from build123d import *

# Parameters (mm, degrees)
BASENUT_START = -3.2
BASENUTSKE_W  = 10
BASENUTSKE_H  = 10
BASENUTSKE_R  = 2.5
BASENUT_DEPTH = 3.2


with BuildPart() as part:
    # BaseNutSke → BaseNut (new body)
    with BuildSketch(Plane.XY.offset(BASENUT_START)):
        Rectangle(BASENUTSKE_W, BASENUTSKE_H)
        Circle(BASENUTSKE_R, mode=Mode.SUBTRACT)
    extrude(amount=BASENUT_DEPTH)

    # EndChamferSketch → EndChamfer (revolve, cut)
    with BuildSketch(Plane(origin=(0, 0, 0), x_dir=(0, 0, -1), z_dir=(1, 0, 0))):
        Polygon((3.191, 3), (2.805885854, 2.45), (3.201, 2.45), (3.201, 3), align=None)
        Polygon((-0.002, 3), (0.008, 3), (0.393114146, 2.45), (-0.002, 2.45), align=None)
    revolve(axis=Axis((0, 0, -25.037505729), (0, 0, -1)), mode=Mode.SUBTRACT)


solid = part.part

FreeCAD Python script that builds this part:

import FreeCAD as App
import Part
import Sketcher
Q = App.Units.Quantity

doc = App.newDocument("Part")
body = doc.addObject("PartDesign::Body", "Body")

sketch1 = body.newObject("Sketcher::SketchObject", "Sketch")
sketch1.AttachmentSupport = (doc.getObject("XY_Plane"), [""])
sketch1.MapMode = "FlatFace"
sketch1.AttachmentOffset = App.Placement(App.Vector(0, 0, -3.2), App.Rotation())
sketch1.addGeometry([
    Part.LineSegment(App.Vector(-5, 5, 0), App.Vector(-5, -5, 0)),
    Part.LineSegment(App.Vector(-5, -5, 0), App.Vector(5, -5, 0)),
    Part.LineSegment(App.Vector(5, -5, 0), App.Vector(5, 5, 0)),
    Part.LineSegment(App.Vector(5, 5, 0), App.Vector(-5, 5, 0)),
    Part.Circle(App.Vector(0, 0, 0), App.Vector(0, 0, 1), 2.5),
], False)
sketch1.addConstraint([
    Sketcher.Constraint("Coincident", 0, 2, 1, 1),
    Sketcher.Constraint("Coincident", 1, 2, 2, 1),
    Sketcher.Constraint("Coincident", 2, 2, 3, 1),
    Sketcher.Constraint("Coincident", 3, 2, 0, 1),
    Sketcher.Constraint("Vertical", 0),
    Sketcher.Constraint("Horizontal", 1),
    Sketcher.Constraint("Vertical", 2),
    Sketcher.Constraint("Horizontal", 3),
    Sketcher.Constraint("Coincident", 4, 3, -1, 1),
    Sketcher.Constraint("Symmetric", 0, 2, 2, 2, -1, 1),
    Sketcher.Constraint("Equal", 3, 0),
    Sketcher.Constraint("Diameter", 4, 5.0),
    Sketcher.Constraint("DistanceX", 1, 1, 1, 2, 10.0),
])
pad1 = body.newObject("PartDesign::Pad", "Pad")
pad1.Profile = sketch1
pad1.Length = 3.2

sketch2 = body.newObject("Sketcher::SketchObject", "Sketch001")
sketch2.AttachmentSupport = (doc.getObject("YZ_Plane"), [""])
sketch2.MapMode = "FlatFace"
sketch2.addGeometry([
    Part.LineSegment(App.Vector(3, -3.191, 0), App.Vector(2.45, -2.806, 0)),
    Part.LineSegment(App.Vector(2.45, -2.806, 0), App.Vector(2.45, -3.201, 0)),
    Part.LineSegment(App.Vector(2.45, -3.201, 0), App.Vector(3, -3.201, 0)),
    Part.LineSegment(App.Vector(3, -3.201, 0), App.Vector(3, -3.191, 0)),
    Part.LineSegment(App.Vector(3, -0.008, 0), App.Vector(3, 0.002, 0)),
    Part.LineSegment(App.Vector(3, 0.002, 0), App.Vector(2.45, 0.002, 0)),
    Part.LineSegment(App.Vector(2.45, 0.002, 0), App.Vector(2.45, -0.393, 0)),
    Part.LineSegment(App.Vector(2.45, -0.393, 0), App.Vector(3, -0.008, 0)),
], False)
sketch2.addConstraint([
    Sketcher.Constraint("Coincident", 0, 2, 1, 1),
    Sketcher.Constraint("Coincident", 1, 2, 2, 1),
    Sketcher.Constraint("Coincident", 2, 2, 3, 1),
    Sketcher.Constraint("Coincident", 3, 2, 0, 1),
    Sketcher.Constraint("Coincident", 4, 2, 5, 1),
    Sketcher.Constraint("Coincident", 5, 2, 6, 1),
    Sketcher.Constraint("Coincident", 6, 2, 7, 1),
    Sketcher.Constraint("Coincident", 7, 2, 4, 1),
    Sketcher.Constraint("Vertical", 1),
    Sketcher.Constraint("Horizontal", 2),
    Sketcher.Constraint("Vertical", 3),
    Sketcher.Constraint("Vertical", 4),
    Sketcher.Constraint("Horizontal", 5),
    Sketcher.Constraint("Vertical", 6),
    Sketcher.Constraint("Vertical", 3, 2, 4, 2),
    Sketcher.Constraint("Vertical", 1, 2, 5, 2),
    Sketcher.Constraint("Equal", 3, 4),
    Sketcher.Constraint("Equal", 1, 6),
    Sketcher.Constraint("Angle", 0, Q("145 deg")),
    Sketcher.Constraint("DistanceX", -1, 1, 2, 2, 3.0),
    Sketcher.Constraint("DistanceX", 2, 1, 2, 2, 0.55),
    Sketcher.Constraint("DistanceY", 3, 1, 3, 2, 0.01),
    Sketcher.Constraint("DistanceY", 1, 2, -1, 1, 3.201),
    Sketcher.Constraint("DistanceY", -1, 1, 4, 2, 0.002),
])
groove = body.newObject("PartDesign::Groove", "Groove")
groove.Profile = sketch2
groove.ReferenceAxis = (sketch2, ["V_Axis"])
groove.Angle = 360

doc.recompute()
